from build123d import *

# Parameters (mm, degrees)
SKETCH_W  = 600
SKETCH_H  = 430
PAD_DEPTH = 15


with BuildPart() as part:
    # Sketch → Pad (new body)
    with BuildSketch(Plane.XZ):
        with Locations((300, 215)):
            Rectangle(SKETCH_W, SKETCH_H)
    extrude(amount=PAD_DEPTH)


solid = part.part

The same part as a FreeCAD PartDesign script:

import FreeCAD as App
import Part
import Sketcher

V = App.Vector
Q = App.Units.Quantity


def add_polygon(sketch, points):
    """Adds a closed chain of lines whose ends are joined by coincident constraints."""
    first, n = sketch.GeometryCount, len(points)
    for a, b in zip(points, points[1:] + points[:1]):
        sketch.addGeometry(Part.LineSegment(App.Vector(*a, 0), App.Vector(*b, 0)), False)
    for i in range(n):
        sketch.addConstraint(Sketcher.Constraint("Coincident", first + i, 2, first + (i + 1) % n, 1))

doc = App.newDocument("Part")
body = doc.addObject("PartDesign::Body", "Body")

# Sketch on XZ plane
sketch1 = body.newObject("Sketcher::SketchObject", "Sketch")
sketch1.AttachmentSupport = (doc.getObject("XZ_Plane"), [""])
sketch1.MapMode = "FlatFace"
add_polygon(sketch1, [(0, 430), (0, 0), (600, 0), (600, 430)])  # lines 0-3
sketch1.addConstraint([
    Sketcher.Constraint("Vertical", 0),
    Sketcher.Constraint("Horizontal", 1),
    Sketcher.Constraint("Vertical", 2),
    Sketcher.Constraint("Horizontal", 3),
    Sketcher.Constraint("Coincident", 0, 2, -1, 1),
    Sketcher.Constraint("DistanceX", 1, 1, 1, 2, Q("600 mm")),
    Sketcher.Constraint("DistanceY", 0, 2, 0, 1, Q("430 mm")),
])
pad1 = body.newObject("PartDesign::Pad", "Pad")
pad1.Profile = sketch1
pad1.Length = 15

doc.recompute()
